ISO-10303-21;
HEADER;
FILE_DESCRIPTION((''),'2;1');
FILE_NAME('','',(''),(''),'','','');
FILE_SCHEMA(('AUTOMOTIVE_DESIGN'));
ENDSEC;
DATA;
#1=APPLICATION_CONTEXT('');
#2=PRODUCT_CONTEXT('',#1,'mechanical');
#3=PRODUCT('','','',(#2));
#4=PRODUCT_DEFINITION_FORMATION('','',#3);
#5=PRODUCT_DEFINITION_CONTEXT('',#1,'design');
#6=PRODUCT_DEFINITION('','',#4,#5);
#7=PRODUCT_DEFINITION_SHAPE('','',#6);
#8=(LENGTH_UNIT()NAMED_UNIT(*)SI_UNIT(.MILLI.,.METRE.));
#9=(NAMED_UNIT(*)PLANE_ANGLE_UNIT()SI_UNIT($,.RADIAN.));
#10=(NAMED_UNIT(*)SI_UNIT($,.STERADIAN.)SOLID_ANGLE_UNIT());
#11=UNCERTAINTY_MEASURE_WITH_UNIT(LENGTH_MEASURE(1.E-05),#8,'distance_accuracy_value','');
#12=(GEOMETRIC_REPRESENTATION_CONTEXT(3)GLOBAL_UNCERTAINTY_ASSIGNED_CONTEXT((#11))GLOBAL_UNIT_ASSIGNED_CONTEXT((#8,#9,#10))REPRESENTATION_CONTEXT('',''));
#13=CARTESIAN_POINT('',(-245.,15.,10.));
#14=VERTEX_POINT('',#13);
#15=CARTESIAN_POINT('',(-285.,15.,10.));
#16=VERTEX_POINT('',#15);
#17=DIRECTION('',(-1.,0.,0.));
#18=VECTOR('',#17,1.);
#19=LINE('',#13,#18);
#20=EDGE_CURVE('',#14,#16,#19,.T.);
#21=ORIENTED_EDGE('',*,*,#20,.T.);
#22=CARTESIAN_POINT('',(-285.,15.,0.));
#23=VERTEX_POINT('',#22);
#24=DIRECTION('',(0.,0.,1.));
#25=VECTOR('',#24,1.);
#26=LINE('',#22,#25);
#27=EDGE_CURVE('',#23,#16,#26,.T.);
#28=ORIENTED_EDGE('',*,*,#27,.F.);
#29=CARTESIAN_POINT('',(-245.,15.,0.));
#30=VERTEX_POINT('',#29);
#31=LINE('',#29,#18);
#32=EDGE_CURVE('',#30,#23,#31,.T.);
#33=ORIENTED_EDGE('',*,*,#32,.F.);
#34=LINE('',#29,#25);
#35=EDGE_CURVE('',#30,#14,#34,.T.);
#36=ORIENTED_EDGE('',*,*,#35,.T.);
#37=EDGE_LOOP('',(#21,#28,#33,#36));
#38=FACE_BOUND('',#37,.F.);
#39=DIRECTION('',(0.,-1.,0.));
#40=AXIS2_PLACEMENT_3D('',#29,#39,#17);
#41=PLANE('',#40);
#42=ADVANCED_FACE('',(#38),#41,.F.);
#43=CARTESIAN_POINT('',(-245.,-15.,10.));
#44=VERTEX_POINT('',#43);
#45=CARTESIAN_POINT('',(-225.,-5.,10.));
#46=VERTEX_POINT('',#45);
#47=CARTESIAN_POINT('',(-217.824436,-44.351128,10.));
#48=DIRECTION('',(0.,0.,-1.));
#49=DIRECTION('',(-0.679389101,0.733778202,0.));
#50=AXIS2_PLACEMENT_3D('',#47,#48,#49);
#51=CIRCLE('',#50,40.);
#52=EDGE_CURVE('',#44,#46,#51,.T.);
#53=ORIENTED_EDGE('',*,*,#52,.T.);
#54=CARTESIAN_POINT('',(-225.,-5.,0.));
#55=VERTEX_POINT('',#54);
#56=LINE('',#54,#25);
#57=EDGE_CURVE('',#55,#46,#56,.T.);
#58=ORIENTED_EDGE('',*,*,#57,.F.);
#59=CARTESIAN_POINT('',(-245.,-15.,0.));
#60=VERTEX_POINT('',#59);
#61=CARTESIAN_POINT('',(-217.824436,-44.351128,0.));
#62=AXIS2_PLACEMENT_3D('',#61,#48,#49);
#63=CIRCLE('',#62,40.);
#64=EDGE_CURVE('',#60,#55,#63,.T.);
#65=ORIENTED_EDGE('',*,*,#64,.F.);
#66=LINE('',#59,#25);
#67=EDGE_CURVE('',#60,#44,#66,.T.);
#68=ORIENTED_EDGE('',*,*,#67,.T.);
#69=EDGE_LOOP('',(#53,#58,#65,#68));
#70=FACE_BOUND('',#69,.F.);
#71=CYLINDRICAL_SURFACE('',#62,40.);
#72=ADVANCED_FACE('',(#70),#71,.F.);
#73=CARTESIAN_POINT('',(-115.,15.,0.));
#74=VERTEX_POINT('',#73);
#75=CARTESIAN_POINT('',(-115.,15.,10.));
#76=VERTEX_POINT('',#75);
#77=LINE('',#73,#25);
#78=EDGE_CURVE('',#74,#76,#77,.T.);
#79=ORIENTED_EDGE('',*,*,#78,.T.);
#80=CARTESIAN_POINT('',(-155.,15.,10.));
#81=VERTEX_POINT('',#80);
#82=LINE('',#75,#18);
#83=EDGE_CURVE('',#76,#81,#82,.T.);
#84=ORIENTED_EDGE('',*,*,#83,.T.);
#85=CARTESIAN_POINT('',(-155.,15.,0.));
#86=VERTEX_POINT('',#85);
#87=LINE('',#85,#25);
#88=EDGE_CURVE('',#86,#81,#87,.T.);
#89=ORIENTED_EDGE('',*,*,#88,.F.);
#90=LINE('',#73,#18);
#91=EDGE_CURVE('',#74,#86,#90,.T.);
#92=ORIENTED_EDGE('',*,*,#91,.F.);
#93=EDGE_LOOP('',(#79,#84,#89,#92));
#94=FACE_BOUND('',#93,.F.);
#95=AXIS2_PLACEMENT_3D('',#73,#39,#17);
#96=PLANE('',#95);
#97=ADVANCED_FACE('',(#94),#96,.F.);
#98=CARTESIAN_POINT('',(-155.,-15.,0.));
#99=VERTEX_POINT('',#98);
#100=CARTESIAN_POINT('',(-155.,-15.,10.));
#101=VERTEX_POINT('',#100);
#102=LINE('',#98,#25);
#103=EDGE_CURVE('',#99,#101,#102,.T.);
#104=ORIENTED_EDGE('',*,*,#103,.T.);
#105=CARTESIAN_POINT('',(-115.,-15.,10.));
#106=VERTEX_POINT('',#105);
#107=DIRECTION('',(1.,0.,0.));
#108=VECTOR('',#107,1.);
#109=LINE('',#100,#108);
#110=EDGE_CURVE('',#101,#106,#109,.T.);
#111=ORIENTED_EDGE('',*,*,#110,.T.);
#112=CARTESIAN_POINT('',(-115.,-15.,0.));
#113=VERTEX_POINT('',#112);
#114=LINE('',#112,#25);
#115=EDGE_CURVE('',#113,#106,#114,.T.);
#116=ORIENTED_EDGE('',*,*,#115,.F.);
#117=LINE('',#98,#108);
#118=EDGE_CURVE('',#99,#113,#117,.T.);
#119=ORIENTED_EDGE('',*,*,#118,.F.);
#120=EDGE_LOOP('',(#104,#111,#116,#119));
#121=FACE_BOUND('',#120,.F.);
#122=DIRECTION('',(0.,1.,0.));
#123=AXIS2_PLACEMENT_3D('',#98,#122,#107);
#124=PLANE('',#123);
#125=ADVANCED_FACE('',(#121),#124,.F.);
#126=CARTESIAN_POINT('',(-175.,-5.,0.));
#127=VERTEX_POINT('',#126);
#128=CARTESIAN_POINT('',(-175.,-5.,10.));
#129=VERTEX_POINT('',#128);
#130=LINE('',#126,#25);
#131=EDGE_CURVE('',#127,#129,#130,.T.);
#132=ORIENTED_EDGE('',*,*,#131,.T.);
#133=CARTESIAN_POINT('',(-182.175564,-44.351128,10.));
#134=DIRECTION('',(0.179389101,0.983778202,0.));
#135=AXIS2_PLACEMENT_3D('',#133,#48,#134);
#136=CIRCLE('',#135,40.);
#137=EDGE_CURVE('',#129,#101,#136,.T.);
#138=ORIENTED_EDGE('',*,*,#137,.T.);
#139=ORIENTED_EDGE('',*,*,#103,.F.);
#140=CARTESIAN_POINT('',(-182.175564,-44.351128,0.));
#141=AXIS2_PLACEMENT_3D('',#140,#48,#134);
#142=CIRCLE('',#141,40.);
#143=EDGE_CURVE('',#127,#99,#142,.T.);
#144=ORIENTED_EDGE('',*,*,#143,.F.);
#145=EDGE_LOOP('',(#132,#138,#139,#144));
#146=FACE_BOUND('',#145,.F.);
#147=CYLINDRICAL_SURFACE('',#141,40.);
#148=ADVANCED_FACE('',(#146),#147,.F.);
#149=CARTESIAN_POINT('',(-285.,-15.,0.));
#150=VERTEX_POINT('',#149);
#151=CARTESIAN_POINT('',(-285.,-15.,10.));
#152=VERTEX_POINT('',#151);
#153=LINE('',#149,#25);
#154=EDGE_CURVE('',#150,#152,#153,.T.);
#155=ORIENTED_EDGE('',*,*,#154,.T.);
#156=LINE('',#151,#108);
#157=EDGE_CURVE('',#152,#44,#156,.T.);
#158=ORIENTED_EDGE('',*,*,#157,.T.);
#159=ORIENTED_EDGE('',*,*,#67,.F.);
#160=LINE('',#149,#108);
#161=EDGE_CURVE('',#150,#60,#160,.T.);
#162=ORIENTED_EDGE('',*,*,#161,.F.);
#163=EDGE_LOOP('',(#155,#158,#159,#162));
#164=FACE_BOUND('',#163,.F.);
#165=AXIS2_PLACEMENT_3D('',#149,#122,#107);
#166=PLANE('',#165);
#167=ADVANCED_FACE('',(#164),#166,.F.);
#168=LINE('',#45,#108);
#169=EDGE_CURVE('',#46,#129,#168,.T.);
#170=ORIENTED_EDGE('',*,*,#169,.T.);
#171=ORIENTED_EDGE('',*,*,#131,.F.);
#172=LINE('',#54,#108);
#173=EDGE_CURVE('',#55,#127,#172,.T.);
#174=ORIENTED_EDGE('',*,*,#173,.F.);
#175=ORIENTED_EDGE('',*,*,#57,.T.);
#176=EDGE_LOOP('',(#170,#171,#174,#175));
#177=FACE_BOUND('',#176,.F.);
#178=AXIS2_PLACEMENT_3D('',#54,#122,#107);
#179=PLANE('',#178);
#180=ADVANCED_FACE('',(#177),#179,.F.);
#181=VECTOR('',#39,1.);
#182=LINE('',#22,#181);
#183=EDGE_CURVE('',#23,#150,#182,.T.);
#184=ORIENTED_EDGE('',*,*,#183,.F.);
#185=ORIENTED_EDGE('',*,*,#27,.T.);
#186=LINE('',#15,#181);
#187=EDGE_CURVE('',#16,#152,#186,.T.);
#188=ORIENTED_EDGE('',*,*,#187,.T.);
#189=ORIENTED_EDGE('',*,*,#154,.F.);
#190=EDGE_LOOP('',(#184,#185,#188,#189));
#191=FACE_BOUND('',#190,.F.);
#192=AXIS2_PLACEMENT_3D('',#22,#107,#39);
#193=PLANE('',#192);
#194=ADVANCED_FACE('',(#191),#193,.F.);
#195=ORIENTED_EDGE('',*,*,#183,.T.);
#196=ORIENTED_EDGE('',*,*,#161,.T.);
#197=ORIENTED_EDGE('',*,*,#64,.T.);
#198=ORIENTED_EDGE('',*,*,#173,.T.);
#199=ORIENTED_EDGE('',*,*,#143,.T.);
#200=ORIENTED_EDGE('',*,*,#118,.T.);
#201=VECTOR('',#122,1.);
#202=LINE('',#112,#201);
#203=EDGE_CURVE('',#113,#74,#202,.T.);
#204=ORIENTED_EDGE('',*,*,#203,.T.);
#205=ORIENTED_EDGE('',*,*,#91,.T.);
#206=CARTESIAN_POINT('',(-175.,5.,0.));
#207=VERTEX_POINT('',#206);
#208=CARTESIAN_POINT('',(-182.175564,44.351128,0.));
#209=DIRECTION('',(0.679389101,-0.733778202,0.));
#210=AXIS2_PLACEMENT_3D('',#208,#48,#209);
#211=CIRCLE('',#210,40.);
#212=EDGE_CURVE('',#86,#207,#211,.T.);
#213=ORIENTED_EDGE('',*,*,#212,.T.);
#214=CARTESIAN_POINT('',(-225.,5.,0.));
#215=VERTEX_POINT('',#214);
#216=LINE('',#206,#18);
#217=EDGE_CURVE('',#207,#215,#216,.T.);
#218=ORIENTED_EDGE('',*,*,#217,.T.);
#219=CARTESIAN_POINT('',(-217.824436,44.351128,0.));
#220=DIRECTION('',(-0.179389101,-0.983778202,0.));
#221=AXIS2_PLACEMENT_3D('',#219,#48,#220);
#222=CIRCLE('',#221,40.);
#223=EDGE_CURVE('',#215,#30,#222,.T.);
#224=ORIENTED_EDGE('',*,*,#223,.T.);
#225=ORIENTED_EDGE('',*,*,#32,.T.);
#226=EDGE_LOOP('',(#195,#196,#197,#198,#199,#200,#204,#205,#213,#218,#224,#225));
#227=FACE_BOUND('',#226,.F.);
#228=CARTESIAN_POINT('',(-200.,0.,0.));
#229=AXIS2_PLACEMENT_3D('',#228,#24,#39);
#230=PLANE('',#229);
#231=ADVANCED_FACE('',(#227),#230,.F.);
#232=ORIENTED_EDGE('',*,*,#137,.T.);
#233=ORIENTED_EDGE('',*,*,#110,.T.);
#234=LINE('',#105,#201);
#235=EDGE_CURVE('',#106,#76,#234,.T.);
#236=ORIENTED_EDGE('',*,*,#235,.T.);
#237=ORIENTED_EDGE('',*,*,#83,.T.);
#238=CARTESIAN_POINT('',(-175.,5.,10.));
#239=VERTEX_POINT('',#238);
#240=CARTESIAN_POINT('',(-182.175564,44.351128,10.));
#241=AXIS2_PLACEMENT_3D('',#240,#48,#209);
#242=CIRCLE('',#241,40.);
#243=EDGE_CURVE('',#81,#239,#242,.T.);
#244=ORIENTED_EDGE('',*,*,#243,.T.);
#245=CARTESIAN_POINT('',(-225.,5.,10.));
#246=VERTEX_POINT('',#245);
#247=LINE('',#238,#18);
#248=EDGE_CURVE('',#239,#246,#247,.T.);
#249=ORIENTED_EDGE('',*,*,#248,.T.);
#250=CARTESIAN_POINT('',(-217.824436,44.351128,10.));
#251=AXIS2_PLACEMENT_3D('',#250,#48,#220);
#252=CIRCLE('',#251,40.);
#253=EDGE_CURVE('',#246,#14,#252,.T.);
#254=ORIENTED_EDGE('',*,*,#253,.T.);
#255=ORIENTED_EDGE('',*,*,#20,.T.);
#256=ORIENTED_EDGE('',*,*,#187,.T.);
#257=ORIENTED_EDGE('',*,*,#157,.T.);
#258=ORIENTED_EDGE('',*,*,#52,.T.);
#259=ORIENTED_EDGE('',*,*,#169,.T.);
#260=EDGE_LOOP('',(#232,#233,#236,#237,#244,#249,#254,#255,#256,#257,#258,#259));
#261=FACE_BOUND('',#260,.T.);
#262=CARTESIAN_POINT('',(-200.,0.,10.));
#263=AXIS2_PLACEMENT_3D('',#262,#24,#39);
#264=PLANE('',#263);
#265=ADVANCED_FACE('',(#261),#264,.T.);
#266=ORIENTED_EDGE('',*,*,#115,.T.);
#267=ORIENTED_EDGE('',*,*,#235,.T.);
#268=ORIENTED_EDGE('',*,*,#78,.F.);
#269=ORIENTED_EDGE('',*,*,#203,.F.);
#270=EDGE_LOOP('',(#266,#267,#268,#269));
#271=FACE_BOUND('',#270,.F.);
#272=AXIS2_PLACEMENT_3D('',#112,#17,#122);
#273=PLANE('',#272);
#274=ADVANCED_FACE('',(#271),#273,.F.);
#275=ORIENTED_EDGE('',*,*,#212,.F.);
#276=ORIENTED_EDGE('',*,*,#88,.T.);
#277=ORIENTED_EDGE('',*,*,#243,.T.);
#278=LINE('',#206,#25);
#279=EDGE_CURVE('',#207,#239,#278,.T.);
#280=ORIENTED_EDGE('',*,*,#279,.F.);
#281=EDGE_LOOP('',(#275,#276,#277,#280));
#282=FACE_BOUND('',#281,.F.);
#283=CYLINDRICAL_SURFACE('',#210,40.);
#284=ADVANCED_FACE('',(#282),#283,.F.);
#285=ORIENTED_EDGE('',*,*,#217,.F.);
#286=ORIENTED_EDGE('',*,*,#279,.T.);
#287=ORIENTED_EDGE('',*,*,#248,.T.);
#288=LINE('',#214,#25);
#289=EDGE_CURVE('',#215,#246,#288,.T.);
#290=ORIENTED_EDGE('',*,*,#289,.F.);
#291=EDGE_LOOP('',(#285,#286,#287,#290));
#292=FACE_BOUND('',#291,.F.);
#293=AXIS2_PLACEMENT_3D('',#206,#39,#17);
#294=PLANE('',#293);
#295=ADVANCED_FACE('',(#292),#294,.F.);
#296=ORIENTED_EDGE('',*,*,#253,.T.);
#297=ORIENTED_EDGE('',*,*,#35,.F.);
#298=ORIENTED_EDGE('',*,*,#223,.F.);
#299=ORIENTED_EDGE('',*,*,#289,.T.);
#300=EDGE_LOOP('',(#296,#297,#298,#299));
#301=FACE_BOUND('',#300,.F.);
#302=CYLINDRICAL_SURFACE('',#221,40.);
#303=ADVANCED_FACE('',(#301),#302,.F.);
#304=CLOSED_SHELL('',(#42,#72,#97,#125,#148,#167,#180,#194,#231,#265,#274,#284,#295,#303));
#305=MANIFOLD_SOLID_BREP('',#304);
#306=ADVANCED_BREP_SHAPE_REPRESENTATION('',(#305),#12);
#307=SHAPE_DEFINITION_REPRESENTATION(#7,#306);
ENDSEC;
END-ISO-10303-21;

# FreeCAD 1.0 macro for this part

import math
import FreeCAD as App
import Part
import Sketcher
from FreeCAD import Vector

doc = App.newDocument("Part")
body = doc.addObject("PartDesign::Body", "Body")

# Sketch on XY plane
sketch1 = doc.addObject("Sketcher::SketchObject", "Sketch")
body.addObject(sketch1)
sketch1.AttachmentSupport = (doc.XY_Plane, [""])
sketch1.MapMode = "FlatFace"
sketch1.addGeometry(Part.LineSegment(Vector(-15, -85, 0), Vector(15, -85, 0)), False)
sketch1.addGeometry(Part.LineSegment(Vector(15, -85, 0), Vector(15, -45, 0)), False)
sketch1.addGeometry(Part.ArcOfCircle(Part.Circle(Vector(44, -18, 0), Vector(0, 0, 1), 40), math.radians(-170), math.radians(-137)), False)
sketch1.addGeometry(Part.LineSegment(Vector(5, -25, 0), Vector(5, 25, 0)), False)
sketch1.addGeometry(Part.ArcOfCircle(Part.Circle(Vector(44, 18, 0), Vector(0, 0, 1), 40), math.radians(137), math.radians(170)), False)
sketch1.addGeometry(Part.LineSegment(Vector(15, 45, 0), Vector(15, 85, 0)), False)
sketch1.addGeometry(Part.LineSegment(Vector(15, 85, 0), Vector(-15, 85, 0)), False)
sketch1.addGeometry(Part.LineSegment(Vector(-15, 85, 0), Vector(-15, 45, 0)), False)
sketch1.addGeometry(Part.ArcOfCircle(Part.Circle(Vector(-44, 18, 0), Vector(0, 0, 1), 40), math.radians(10), math.radians(43)), False)
sketch1.addGeometry(Part.LineSegment(Vector(-5, 25, 0), Vector(-5, -25, 0)), False)
sketch1.addGeometry(Part.ArcOfCircle(Part.Circle(Vector(-44, -18, 0), Vector(0, 0, 1), 40), math.radians(-43), math.radians(-10)), False)
sketch1.addGeometry(Part.LineSegment(Vector(-15, -45, 0), Vector(-15, -85, 0)), False)
sketch1.addConstraint(Sketcher.Constraint("Coincident", 0, 2, 1, 1))
sketch1.addConstraint(Sketcher.Constraint("Coincident", 1, 2, 2, 2))
sketch1.addConstraint(Sketcher.Constraint("Coincident", 2, 1, 3, 1))
sketch1.addConstraint(Sketcher.Constraint("Coincident", 3, 2, 4, 2))
sketch1.addConstraint(Sketcher.Constraint("Coincident", 4, 1, 5, 1))
sketch1.addConstraint(Sketcher.Constraint("Coincident", 5, 2, 6, 1))
sketch1.addConstraint(Sketcher.Constraint("Coincident", 6, 2, 7, 1))
sketch1.addConstraint(Sketcher.Constraint("Coincident", 7, 2, 8, 2))
sketch1.addConstraint(Sketcher.Constraint("Coincident", 8, 1, 9, 1))
sketch1.addConstraint(Sketcher.Constraint("Coincident", 9, 2, 10, 2))
sketch1.addConstraint(Sketcher.Constraint("Coincident", 10, 1, 11, 1))
sketch1.addConstraint(Sketcher.Constraint("Coincident", 11, 2, 0, 1))
sketch1.addConstraint(Sketcher.Constraint("Horizontal", 0))
sketch1.addConstraint(Sketcher.Constraint("Vertical", 1))
sketch1.addConstraint(Sketcher.Constraint("Vertical", 3))
sketch1.addConstraint(Sketcher.Constraint("Vertical", 5))
sketch1.addConstraint(Sketcher.Constraint("Horizontal", 6))
sketch1.addConstraint(Sketcher.Constraint("Vertical", 7))
sketch1.addConstraint(Sketcher.Constraint("Vertical", 9))
sketch1.addConstraint(Sketcher.Constraint("Vertical", 11))
sketch1.addConstraint(Sketcher.Constraint("Equal", 2, 4))
sketch1.addConstraint(Sketcher.Constraint("Equal", 4, 8))
sketch1.addConstraint(Sketcher.Constraint("Equal", 8, 10))
sketch1.addConstraint(Sketcher.Constraint("Symmetric", 2, 3, 8, 3, -1, 1))
sketch1.addConstraint(Sketcher.Constraint("Symmetric", 4, 3, 10, 3, -1, 1))
sketch1.addConstraint(Sketcher.Constraint("Symmetric", 0, 2, 6, 2, -1, 1))
sketch1.addConstraint(Sketcher.Constraint("Symmetric", 4, 3, 8, 3, -2))
sketch1.addConstraint(Sketcher.Constraint("Horizontal", 4, 1, 7, 2))
sketch1.addConstraint(Sketcher.Constraint("Horizontal", 3, 2, 8, 1))
sketch1.addConstraint(Sketcher.Constraint("Horizontal", 1, 2, 10, 1))
sketch1.addConstraint(Sketcher.Constraint("Radius", 2, 40.0))
sketch1.addConstraint(Sketcher.Constraint("DistanceX", 0, 1, 0, 2, 30.0))
sketch1.addConstraint(Sketcher.Constraint("DistanceY", 1, 1, 1, 2, 40.0))
sketch1.addConstraint(Sketcher.Constraint("DistanceY", 3, 1, 3, 2, 50.0))
sketch1.addConstraint(Sketcher.Constraint("DistanceY", 0, 2, -1, 1, 85.0))
sketch1.addConstraint(Sketcher.Constraint("DistanceX", -1, 1, 2, 1, 5.0))
pad1 = doc.addObject("PartDesign::Pad", "Pad")
body.addObject(pad1)
pad1.Profile = sketch1
pad1.Length = 10
body2 = doc.addObject("PartDesign::Body", "Body001")
doc.recompute()

body.Placement = App.Placement(Vector(70, -100, 0), App.Rotation(Vector(0, 0, -1), 90))
boolean = doc.addObject("PartDesign::Boolean", "Boolean")
body2.addObject(boolean)
boolean.Type = "Fuse"
boolean.addObjects([body])
body3 = doc.addObject("PartDesign::Body", "Body002")
doc.recompute()

body2.Placement = App.Placement(Vector(-70, 100, 0), App.Rotation(Vector(0, 0, 1), 0))
boolean2 = doc.addObject("PartDesign::Boolean", "Boolean001")
body3.addObject(boolean2)
boolean2.Type = "Fuse"
boolean2.addObjects([body2])
body4 = doc.addObject("PartDesign::Body", "Body003")
doc.recompute()

body3.Placement = App.Placement(Vector(-200, 0, 0), App.Rotation(Vector(0, 0, 1), 0))
boolean3 = doc.addObject("PartDesign::Boolean", "Boolean002")
body4.addObject(boolean3)
boolean3.Type = "Fuse"
boolean3.addObjects([body3])

doc.recompute()
